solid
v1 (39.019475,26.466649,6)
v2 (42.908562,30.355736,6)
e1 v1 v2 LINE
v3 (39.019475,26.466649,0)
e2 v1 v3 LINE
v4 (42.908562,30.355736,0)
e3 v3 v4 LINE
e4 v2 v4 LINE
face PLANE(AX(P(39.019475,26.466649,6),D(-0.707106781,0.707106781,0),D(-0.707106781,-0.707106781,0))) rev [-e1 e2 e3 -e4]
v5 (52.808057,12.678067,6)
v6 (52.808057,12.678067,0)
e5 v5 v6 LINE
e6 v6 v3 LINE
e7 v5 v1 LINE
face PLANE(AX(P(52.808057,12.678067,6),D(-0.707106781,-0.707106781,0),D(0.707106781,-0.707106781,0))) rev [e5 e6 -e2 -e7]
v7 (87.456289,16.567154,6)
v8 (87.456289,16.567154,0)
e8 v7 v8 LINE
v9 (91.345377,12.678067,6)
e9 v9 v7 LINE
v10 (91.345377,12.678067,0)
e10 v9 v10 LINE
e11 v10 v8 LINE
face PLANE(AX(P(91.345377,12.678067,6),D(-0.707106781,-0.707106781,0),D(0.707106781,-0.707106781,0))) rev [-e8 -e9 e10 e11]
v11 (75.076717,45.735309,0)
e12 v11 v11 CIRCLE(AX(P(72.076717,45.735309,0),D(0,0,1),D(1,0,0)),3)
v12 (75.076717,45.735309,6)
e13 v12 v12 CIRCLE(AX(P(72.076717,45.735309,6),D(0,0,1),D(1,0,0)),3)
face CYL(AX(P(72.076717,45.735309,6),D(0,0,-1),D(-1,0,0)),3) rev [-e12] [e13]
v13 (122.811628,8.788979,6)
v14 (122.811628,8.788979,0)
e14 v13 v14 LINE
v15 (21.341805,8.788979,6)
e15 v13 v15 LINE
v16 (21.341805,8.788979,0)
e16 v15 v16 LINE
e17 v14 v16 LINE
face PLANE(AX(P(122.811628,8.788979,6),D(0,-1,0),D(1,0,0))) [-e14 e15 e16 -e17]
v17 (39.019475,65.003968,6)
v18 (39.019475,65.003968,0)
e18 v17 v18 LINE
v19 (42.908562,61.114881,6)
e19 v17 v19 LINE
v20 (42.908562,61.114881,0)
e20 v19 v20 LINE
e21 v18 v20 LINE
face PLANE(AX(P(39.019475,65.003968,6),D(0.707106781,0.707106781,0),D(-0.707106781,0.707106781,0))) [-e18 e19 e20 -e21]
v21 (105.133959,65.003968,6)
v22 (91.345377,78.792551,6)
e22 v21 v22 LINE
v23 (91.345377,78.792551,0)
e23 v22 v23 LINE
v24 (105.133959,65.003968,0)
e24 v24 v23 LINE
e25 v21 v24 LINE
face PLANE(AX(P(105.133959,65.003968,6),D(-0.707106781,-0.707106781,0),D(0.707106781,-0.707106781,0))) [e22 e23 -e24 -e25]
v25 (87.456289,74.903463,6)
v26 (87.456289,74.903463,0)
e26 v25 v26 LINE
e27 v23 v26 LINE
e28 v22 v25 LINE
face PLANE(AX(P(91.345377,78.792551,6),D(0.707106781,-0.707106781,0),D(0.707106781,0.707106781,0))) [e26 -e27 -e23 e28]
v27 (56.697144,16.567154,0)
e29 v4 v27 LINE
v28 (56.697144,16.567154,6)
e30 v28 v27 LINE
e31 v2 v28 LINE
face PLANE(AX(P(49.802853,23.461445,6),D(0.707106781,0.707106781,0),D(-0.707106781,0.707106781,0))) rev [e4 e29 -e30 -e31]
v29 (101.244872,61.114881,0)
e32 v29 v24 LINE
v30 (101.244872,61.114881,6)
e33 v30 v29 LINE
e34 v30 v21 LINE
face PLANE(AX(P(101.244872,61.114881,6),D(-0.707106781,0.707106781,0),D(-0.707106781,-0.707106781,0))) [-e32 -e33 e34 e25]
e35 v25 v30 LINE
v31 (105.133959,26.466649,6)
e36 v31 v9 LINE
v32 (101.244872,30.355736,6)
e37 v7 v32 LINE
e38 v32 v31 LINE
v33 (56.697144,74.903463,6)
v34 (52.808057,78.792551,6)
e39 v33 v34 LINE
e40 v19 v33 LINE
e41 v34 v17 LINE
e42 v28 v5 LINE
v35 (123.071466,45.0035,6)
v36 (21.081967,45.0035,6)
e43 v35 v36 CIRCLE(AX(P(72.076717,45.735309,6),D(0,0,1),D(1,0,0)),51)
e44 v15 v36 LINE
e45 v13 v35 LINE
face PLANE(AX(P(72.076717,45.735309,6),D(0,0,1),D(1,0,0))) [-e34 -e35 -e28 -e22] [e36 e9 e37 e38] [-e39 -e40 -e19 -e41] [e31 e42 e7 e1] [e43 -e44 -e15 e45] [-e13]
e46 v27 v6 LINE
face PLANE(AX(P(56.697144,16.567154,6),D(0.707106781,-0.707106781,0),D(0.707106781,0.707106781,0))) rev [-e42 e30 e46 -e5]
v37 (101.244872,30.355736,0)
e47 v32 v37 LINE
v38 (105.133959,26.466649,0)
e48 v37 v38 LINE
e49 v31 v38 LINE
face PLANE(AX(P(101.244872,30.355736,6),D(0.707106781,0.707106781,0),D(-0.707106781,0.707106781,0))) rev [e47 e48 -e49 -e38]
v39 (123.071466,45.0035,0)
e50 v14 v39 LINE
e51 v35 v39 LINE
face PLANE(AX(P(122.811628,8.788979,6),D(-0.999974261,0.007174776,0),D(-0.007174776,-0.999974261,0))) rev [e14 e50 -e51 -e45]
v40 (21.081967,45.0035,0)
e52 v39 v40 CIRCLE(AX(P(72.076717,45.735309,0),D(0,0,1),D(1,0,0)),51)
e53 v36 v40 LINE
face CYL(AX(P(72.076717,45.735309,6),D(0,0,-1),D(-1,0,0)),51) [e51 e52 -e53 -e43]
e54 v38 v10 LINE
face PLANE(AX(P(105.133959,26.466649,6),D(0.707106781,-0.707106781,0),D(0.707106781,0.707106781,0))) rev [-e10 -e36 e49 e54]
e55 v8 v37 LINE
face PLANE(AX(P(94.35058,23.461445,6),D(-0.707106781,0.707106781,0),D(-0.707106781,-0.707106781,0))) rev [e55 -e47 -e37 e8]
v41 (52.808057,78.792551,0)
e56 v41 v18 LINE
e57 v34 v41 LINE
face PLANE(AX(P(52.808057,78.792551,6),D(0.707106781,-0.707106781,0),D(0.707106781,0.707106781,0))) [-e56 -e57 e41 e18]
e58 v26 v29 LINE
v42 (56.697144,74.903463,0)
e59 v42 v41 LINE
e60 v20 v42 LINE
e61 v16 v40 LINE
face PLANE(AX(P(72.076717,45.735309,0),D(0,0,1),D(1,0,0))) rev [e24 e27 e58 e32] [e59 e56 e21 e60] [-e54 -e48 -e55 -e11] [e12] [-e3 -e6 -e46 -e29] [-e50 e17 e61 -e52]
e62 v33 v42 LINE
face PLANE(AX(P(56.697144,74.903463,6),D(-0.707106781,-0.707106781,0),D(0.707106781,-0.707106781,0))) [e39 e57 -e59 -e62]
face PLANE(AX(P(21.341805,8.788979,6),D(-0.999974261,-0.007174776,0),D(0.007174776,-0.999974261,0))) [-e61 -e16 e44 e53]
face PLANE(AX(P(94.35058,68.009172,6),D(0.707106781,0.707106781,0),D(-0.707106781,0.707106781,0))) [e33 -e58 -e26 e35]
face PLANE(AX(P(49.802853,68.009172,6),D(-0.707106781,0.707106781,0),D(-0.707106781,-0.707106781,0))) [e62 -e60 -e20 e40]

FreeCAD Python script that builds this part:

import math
import FreeCAD as App
import Part
import Sketcher

V = App.Vector
Q = App.Units.Quantity

doc = App.newDocument("Part")
body = doc.addObject("PartDesign::Body", "Body")

# Sketch on XY plane
sketch1 = body.newObject("Sketcher::SketchObject", "Sketch")
sketch1.AttachmentSupport = (doc.getObject("XY_Plane"), [""])
sketch1.MapMode = "FlatFace"
sketch1.addGeometry([
    Part.LineSegment(V(21.3, 8.8, 0), V(122.8, 8.8, 0)),  # 0
    Part.LineSegment(V(122.8, 8.8, 0), V(123.1, 45, 0)),  # 1
    Part.ArcOfCircle(Part.Circle(V(72.1, 45.7, 0), V(0, 0, 1), 51), math.radians(-1), math.radians(181)),  # 2
    Part.LineSegment(V(21.1, 45, 0), V(21.3, 8.8, 0)),  # 3
    Part.LineSegment(V(94.4, 23.5, 0), V(101.2, 30.4, 0)),  # 4
    Part.LineSegment(V(101.2, 30.4, 0), V(105.1, 26.5, 0)),  # 5
    Part.LineSegment(V(105.1, 26.5, 0), V(91.3, 12.7, 0)),  # 6
    Part.LineSegment(V(91.3, 12.7, 0), V(87.5, 16.6, 0)),  # 7
    Part.LineSegment(V(87.5, 16.6, 0), V(94.4, 23.5, 0)),  # 8
    Part.LineSegment(V(49.8, 23.5, 0), V(56.7, 16.6, 0)),  # 9
    Part.LineSegment(V(56.7, 16.6, 0), V(52.8, 12.7, 0)),  # 10
    Part.LineSegment(V(52.8, 12.7, 0), V(39, 26.5, 0)),  # 11
    Part.LineSegment(V(39, 26.5, 0), V(42.9, 30.4, 0)),  # 12
    Part.LineSegment(V(42.9, 30.4, 0), V(49.8, 23.5, 0)),  # 13
    Part.LineSegment(V(94.4, 68, 0), V(87.5, 74.9, 0)),  # 14
    Part.LineSegment(V(87.5, 74.9, 0), V(91.3, 78.8, 0)),  # 15
    Part.LineSegment(V(91.3, 78.8, 0), V(105.1, 65, 0)),  # 16
    Part.LineSegment(V(105.1, 65, 0), V(101.2, 61.1, 0)),  # 17
    Part.LineSegment(V(101.2, 61.1, 0), V(94.4, 68, 0)),  # 18
    Part.Circle(V(72.1, 45.7, 0), V(0, 0, 1), 3),  # 19
    Part.LineSegment(V(49.8, 68, 0), V(42.9, 61.1, 0)),  # 20
    Part.LineSegment(V(42.9, 61.1, 0), V(39, 65, 0)),  # 21
    Part.LineSegment(V(39, 65, 0), V(52.8, 78.8, 0)),  # 22
    Part.LineSegment(V(52.8, 78.8, 0), V(56.7, 74.9, 0)),  # 23
    Part.LineSegment(V(56.7, 74.9, 0), V(49.8, 68, 0)),  # 24
], False)
sketch1.addConstraint([
    Sketcher.Constraint("Coincident", 0, 2, 1, 1),
    Sketcher.Constraint("Coincident", 1, 2, 2, 1),
    Sketcher.Constraint("Coincident", 2, 2, 3, 1),
    Sketcher.Constraint("Coincident", 3, 2, 0, 1),
    Sketcher.Constraint("Coincident", 4, 2, 5, 1),
    Sketcher.Constraint("Coincident", 5, 2, 6, 1),
    Sketcher.Constraint("Coincident", 6, 2, 7, 1),
    Sketcher.Constraint("Coincident", 7, 2, 8, 1),
    Sketcher.Constraint("Coincident", 8, 2, 4, 1),
    Sketcher.Constraint("Coincident", 9, 2, 10, 1),
    Sketcher.Constraint("Coincident", 10, 2, 11, 1),
    Sketcher.Constraint("Coincident", 11, 2, 12, 1),
    Sketcher.Constraint("Coincident", 12, 2, 13, 1),
    Sketcher.Constraint("Coincident", 13, 2, 9, 1),
    Sketcher.Constraint("Coincident", 14, 2, 15, 1),
    Sketcher.Constraint("Coincident", 15, 2, 16, 1),
    Sketcher.Constraint("Coincident", 16, 2, 17, 1),
    Sketcher.Constraint("Coincident", 17, 2, 18, 1),
    Sketcher.Constraint("Coincident", 18, 2, 14, 1),
    Sketcher.Constraint("Coincident", 20, 2, 21, 1),
    Sketcher.Constraint("Coincident", 21, 2, 22, 1),
    Sketcher.Constraint("Coincident", 22, 2, 23, 1),
    Sketcher.Constraint("Coincident", 23, 2, 24, 1),
    Sketcher.Constraint("Coincident", 24, 2, 20, 1),
    Sketcher.Constraint("Horizontal", 0),
    Sketcher.Constraint("Coincident", 19, 3, 2, 3),
    Sketcher.Constraint("Perpendicular", 4, 5),
    Sketcher.Constraint("Perpendicular", 5, 6),
    Sketcher.Constraint("Perpendicular", 6, 7),
    Sketcher.Constraint("Perpendicular", 7, 8),
    Sketcher.Constraint("Perpendicular", 8, 9),
    Sketcher.Constraint("Perpendicular", 9, 10),
    Sketcher.Constraint("Perpendicular", 10, 11),
    Sketcher.Constraint("Perpendicular", 11, 12),
    Sketcher.Constraint("Perpendicular", 12, 13),
    Sketcher.Constraint("Parallel", 13, 14),
    Sketcher.Constraint("Perpendicular", 14, 15),
    Sketcher.Constraint("Perpendicular", 15, 16),
    Sketcher.Constraint("Perpendicular", 16, 17),
    Sketcher.Constraint("Perpendicular", 17, 18),
    Sketcher.Constraint("Perpendicular", 18, 20),
    Sketcher.Constraint("Perpendicular", 20, 21),
    Sketcher.Constraint("Perpendicular", 21, 22),
    Sketcher.Constraint("Perpendicular", 22, 23),
    Sketcher.Constraint("Perpendicular", 23, 24),
    Sketcher.Constraint("Horizontal", 1, 2, 2, 2),
    Sketcher.Constraint("Horizontal", 7, 2, 9, 2),
    Sketcher.Constraint("Horizontal", 6, 2, 10, 2),
    Sketcher.Constraint("Horizontal", 5, 2, 11, 2),
    Sketcher.Constraint("Horizontal", 8, 2, 13, 2),
    Sketcher.Constraint("Horizontal", 17, 2, 20, 2),
    Sketcher.Constraint("Horizontal", 16, 2, 21, 2),
    Sketcher.Constraint("Horizontal", 15, 2, 22, 2),
    Sketcher.Constraint("Horizontal", 18, 2, 24, 2),
    Sketcher.Constraint("Vertical", 7, 2, 14, 2),
    Sketcher.Constraint("Vertical", 6, 2, 15, 2),
    Sketcher.Constraint("Vertical", 5, 2, 16, 2),
    Sketcher.Constraint("Vertical", 8, 2, 18, 2),
    Sketcher.Constraint("Vertical", 12, 2, 20, 2),
    Sketcher.Constraint("Vertical", 11, 2, 21, 2),
    Sketcher.Constraint("Equal", 1, 3),
    Sketcher.Constraint("Equal", 4, 8),
    Sketcher.Constraint("Diameter", 19, Q("6 mm")),
    Sketcher.Constraint("Radius", 2, Q("51 mm")),
    Sketcher.Constraint("Distance", 5, Q("5.5 mm")),
    Sketcher.Constraint("Distance", 6, Q("19.5 mm")),
    Sketcher.Constraint("DistanceY", -1, 1, 1, 2, Q("45.0035 mm")),
    Sketcher.Constraint("DistanceX", 2, 2, 1, 2, Q("101.989499 mm")),
    Sketcher.Constraint("DistanceX", 0, 1, 0, 2, Q("101.469823 mm")),
    Sketcher.Constraint("DistanceX", -1, 1, 0, 2, Q("122.811628 mm")),
    Sketcher.Constraint("DistanceY", -1, 1, 0, 2, Q("8.788979 mm")),
    Sketcher.Constraint("DistanceX", -1, 1, 4, 2, Q("101.244872 mm")),
    Sketcher.Constraint("DistanceY", -1, 1, 5, 2, Q("26.466649 mm")),
    Sketcher.Constraint("DistanceY", -1, 1, 15, 2, Q("78.792551 mm")),
    Sketcher.Constraint("DistanceX", 3, 2, 9, 2, Q("35.355339 mm")),
])
pad1 = body.newObject("PartDesign::Pad", "Pad")
pad1.Profile = sketch1
pad1.Length = 6

doc.recompute()
